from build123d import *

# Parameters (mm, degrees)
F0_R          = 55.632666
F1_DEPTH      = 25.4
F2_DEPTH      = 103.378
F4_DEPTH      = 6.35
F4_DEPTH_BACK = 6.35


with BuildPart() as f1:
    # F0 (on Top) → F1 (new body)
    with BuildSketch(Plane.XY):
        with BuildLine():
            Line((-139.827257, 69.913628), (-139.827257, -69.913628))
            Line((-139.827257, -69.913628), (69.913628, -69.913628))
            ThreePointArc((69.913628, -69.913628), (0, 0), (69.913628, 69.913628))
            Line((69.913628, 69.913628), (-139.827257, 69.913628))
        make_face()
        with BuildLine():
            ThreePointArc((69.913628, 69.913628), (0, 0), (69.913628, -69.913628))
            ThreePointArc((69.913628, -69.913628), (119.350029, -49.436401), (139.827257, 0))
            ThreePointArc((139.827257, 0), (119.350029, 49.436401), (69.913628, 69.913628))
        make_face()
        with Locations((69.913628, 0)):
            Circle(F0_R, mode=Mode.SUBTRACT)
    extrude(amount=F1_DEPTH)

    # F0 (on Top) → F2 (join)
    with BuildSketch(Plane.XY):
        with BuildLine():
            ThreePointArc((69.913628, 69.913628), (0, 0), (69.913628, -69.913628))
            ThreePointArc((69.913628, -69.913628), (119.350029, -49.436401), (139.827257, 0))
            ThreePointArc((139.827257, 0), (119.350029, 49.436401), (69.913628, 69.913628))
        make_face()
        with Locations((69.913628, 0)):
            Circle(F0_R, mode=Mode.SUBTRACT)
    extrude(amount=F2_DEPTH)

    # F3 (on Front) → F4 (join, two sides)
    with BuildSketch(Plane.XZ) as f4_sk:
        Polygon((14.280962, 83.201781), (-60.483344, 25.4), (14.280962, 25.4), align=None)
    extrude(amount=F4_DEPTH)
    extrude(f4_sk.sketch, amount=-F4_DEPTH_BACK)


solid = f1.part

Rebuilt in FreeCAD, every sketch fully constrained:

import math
import FreeCAD as App
import Part
import Sketcher

V = App.Vector
Q = App.Units.Quantity


def add_polygon(sketch, points):
    """Adds a closed chain of lines whose ends are joined by coincident constraints."""
    first, n = sketch.GeometryCount, len(points)
    for a, b in zip(points, points[1:] + points[:1]):
        sketch.addGeometry(Part.LineSegment(App.Vector(*a, 0), App.Vector(*b, 0)), False)
    for i in range(n):
        sketch.addConstraint(Sketcher.Constraint("Coincident", first + i, 2, first + (i + 1) % n, 1))

doc = App.newDocument("Part")
body = doc.addObject("PartDesign::Body", "Body")

# Sketch on XY plane
sketch1 = doc.addObject("Sketcher::SketchObject", "Sketch")
body.addObject(sketch1)
sketch1.AttachmentSupport = (doc.XY_Plane, [""])
sketch1.MapMode = "FlatFace"
sketch1.addGeometry(Part.LineSegment(V(-140, 70, 0), V(-140, -70, 0)), False)
sketch1.addGeometry(Part.LineSegment(V(-140, -70, 0), V(70, -70, 0)), False)
sketch1.addGeometry(Part.ArcOfCircle(Part.Circle(V(70, 0, 0), V(0, 0, 1), 70), math.radians(-90), math.radians(0)), False)
sketch1.addGeometry(Part.ArcOfCircle(Part.Circle(V(70, 0, 0), V(0, 0, 1), 70), math.radians(0), math.radians(90)), False)
sketch1.addGeometry(Part.LineSegment(V(70, 70, 0), V(-140, 70, 0)), False)
sketch1.addGeometry(Part.Circle(V(70, 0, 0), V(0, 0, 1), 56), False)
sketch1.addConstraint(Sketcher.Constraint("Coincident", 0, 2, 1, 1))
sketch1.addConstraint(Sketcher.Constraint("Tangent", 1, 2, 2, 1))
sketch1.addConstraint(Sketcher.Constraint("Tangent", 2, 2, 3, 1))
sketch1.addConstraint(Sketcher.Constraint("Tangent", 3, 2, 4, 1))
sketch1.addConstraint(Sketcher.Constraint("Coincident", 4, 2, 0, 1))
sketch1.addConstraint(Sketcher.Constraint("Vertical", 0))
sketch1.addConstraint(Sketcher.Constraint("Horizontal", 1))
sketch1.addConstraint(Sketcher.Constraint("Horizontal", 4))
sketch1.addConstraint(Sketcher.Constraint("Coincident", 5, 3, 2, 3))
sketch1.addConstraint(Sketcher.Constraint("Equal", 2, 3))
sketch1.addConstraint(Sketcher.Constraint("PointOnObject", 2, 3, -1))
sketch1.addConstraint(Sketcher.Constraint("PointOnObject", 2, 2, -1))
sketch1.addConstraint(Sketcher.Constraint("Diameter", 5, Q("111.265332 mm")))
sketch1.addConstraint(Sketcher.Constraint("Radius", 2, Q("69.913628 mm")))
sketch1.addConstraint(Sketcher.Constraint("DistanceX", 1, 1, 1, 2, Q("209.740885 mm")))
sketch1.addConstraint(Sketcher.Constraint("DistanceX", -1, 1, 2, 3, Q("69.913629 mm")))
pad1 = doc.addObject("PartDesign::Pad", "Pad")
body.addObject(pad1)
pad1.Profile = sketch1
pad1.Length = Q("1 in")

# Sketch on XY plane
sketch2 = doc.addObject("Sketcher::SketchObject", "Sketch001")
body.addObject(sketch2)
sketch2.AttachmentSupport = (doc.XY_Plane, [""])
sketch2.MapMode = "FlatFace"
sketch2.addGeometry(Part.ArcOfCircle(Part.Circle(V(70, 0, 0), V(0, 0, 1), 70), math.radians(90), math.radians(270)), False)
sketch2.addGeometry(Part.ArcOfCircle(Part.Circle(V(70, 0, 0), V(0, 0, 1), 70), math.radians(-90), math.radians(0)), False)
sketch2.addGeometry(Part.ArcOfCircle(Part.Circle(V(70, 0, 0), V(0, 0, 1), 70), math.radians(0), math.radians(90)), False)
sketch2.addGeometry(Part.Circle(V(70, 0, 0), V(0, 0, 1), 56), False)
sketch2.addConstraint(Sketcher.Constraint("Tangent", 0, 2, 1, 1))
sketch2.addConstraint(Sketcher.Constraint("Tangent", 1, 2, 2, 1))
sketch2.addConstraint(Sketcher.Constraint("Tangent", 2, 2, 0, 1))
sketch2.addConstraint(Sketcher.Constraint("Coincident", 3, 3, 0, 3))
sketch2.addConstraint(Sketcher.Constraint("Symmetric", 0, 2, 2, 2, -1))
sketch2.addConstraint(Sketcher.Constraint("PointOnObject", 1, 2, -1))
sketch2.addConstraint(Sketcher.Constraint("Vertical", 3, 3, 0, 2))
sketch2.addConstraint(Sketcher.Constraint("Diameter", 3, Q("111.265332 mm")))
sketch2.addConstraint(Sketcher.Constraint("Radius", 0, Q("69.913628 mm")))
sketch2.addConstraint(Sketcher.Constraint("DistanceX", -1, 1, 0, 3, Q("69.913628 mm")))
pad2 = doc.addObject("PartDesign::Pad", "Pad001")
body.addObject(pad2)
pad2.Profile = sketch2
pad2.Length = Q("4.07 in")

# Sketch on XZ plane
sketch3 = doc.addObject("Sketcher::SketchObject", "Sketch002")
body.addObject(sketch3)
sketch3.AttachmentSupport = (doc.XZ_Plane, [""])
sketch3.MapMode = "FlatFace"
add_polygon(sketch3, [(14, 83), (-60, 25), (14, 25)])  # lines 0-2
sketch3.addConstraint(Sketcher.Constraint("Horizontal", 1))
sketch3.addConstraint(Sketcher.Constraint("Vertical", 2))
sketch3.addConstraint(Sketcher.Constraint("DistanceY", -1, 1, 0, 2, Q("1 in")))
sketch3.addConstraint(Sketcher.Constraint("DistanceY", 2, 1, 2, 2, Q("57.801781 mm")))
sketch3.addConstraint(Sketcher.Constraint("Distance", 0, Q("94.502631 mm")))
sketch3.addConstraint(Sketcher.Constraint("DistanceX", 0, 2, -1, 1, Q("60.483344 mm")))
pad3 = doc.addObject("PartDesign::Pad", "Pad002")
body.addObject(pad3)
pad3.Profile = sketch3
pad3.Type = "TwoLengths"
pad3.Length = Q("0.25 in")
pad3.Length2 = Q("0.25 in")

doc.recompute()
